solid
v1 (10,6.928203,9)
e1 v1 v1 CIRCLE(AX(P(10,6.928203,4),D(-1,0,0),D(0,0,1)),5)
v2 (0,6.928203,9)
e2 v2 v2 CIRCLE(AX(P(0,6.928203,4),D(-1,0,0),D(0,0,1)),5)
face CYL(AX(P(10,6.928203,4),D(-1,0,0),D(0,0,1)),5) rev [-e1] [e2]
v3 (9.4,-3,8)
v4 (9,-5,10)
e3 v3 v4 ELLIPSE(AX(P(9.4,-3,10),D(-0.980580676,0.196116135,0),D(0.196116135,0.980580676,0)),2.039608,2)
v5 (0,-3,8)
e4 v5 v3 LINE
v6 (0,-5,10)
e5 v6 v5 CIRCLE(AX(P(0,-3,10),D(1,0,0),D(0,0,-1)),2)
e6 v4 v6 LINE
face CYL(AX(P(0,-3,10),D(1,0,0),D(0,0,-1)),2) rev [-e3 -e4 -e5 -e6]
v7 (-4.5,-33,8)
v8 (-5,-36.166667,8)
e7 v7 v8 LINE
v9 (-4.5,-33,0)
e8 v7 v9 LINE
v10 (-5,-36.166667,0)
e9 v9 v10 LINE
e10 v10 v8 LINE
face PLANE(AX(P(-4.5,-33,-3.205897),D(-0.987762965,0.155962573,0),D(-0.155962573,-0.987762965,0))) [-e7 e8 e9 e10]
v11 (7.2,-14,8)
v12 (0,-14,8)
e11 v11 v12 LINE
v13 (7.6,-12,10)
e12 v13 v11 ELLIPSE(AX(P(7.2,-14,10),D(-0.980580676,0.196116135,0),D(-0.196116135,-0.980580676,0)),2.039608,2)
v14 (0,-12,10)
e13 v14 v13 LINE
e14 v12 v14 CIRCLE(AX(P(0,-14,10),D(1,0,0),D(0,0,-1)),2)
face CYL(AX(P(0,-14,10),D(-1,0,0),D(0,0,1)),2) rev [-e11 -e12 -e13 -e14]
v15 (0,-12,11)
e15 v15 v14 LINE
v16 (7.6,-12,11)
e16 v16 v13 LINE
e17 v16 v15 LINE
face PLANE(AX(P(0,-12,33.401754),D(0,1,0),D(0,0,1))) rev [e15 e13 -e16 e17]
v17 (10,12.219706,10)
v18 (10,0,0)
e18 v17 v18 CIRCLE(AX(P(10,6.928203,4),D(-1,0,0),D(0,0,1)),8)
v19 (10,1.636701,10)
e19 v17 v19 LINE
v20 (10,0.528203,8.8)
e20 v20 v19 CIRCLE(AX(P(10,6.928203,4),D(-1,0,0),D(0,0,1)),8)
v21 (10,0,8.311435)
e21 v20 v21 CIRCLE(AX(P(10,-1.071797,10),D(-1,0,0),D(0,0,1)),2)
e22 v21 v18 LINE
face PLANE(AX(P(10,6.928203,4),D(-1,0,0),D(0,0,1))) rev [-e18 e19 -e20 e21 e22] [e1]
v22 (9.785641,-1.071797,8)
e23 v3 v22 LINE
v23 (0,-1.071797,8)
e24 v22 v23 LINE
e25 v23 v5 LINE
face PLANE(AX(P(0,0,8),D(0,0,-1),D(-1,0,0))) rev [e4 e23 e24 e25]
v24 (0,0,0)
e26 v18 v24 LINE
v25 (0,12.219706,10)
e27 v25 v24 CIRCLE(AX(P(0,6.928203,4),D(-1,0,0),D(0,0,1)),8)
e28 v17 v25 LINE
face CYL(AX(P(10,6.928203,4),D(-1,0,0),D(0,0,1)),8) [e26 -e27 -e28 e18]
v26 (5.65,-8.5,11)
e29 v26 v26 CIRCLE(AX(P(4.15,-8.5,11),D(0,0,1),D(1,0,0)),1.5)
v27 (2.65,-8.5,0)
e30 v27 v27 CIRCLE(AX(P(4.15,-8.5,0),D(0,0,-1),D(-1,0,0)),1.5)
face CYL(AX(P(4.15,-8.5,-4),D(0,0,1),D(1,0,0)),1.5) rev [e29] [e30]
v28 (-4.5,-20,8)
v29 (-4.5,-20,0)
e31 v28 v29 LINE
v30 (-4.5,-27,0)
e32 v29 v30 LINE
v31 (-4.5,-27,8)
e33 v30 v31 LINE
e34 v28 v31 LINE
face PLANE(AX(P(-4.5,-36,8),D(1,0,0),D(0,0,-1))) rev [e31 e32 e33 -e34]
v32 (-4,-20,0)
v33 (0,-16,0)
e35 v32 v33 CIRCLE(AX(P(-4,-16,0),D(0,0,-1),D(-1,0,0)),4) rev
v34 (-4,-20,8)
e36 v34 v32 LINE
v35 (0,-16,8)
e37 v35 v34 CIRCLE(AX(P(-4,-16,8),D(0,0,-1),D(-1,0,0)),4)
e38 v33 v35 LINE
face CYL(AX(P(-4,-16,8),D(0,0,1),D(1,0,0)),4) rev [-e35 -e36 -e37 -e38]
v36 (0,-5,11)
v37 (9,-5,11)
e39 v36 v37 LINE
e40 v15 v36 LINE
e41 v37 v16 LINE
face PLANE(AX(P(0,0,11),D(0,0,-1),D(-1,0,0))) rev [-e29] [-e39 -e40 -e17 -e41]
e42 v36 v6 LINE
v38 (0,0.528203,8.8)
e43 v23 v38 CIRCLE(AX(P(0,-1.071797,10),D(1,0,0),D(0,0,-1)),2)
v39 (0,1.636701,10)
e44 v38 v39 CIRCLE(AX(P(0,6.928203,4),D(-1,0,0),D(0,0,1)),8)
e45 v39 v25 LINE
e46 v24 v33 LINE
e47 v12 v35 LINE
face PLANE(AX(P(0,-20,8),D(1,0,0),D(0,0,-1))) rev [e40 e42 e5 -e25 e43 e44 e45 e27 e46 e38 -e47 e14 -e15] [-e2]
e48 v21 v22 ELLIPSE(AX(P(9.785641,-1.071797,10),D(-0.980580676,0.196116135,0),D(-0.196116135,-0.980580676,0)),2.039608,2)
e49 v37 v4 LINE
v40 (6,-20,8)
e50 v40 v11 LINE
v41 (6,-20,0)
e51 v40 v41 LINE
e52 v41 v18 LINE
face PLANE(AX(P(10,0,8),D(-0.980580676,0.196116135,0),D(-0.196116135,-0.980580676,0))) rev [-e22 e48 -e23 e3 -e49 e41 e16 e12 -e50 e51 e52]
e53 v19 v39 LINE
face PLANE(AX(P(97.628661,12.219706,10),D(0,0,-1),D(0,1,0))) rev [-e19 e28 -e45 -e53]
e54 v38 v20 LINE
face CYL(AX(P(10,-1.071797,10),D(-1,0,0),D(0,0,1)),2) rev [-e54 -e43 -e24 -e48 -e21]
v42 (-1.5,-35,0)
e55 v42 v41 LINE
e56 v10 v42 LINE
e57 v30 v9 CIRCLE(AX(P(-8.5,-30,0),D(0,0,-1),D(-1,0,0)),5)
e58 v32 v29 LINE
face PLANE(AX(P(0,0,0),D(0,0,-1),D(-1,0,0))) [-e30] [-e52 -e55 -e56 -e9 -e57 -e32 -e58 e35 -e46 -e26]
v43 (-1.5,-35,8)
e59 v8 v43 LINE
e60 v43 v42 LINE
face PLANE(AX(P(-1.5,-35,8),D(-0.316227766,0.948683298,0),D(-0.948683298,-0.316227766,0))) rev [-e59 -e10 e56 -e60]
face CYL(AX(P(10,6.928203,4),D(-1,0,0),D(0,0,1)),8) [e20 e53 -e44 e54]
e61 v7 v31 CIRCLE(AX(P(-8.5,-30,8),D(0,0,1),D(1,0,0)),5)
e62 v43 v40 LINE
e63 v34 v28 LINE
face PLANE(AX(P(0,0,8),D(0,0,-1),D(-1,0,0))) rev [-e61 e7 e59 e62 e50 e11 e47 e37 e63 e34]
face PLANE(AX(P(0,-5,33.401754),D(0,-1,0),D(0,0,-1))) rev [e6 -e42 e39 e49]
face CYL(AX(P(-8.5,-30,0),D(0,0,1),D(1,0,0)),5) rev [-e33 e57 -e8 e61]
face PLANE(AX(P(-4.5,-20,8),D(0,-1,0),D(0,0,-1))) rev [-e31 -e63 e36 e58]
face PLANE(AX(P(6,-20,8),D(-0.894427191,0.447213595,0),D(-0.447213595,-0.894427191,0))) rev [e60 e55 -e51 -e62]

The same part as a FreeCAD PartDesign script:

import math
import FreeCAD as App
import Part
import Sketcher
from FreeCAD import Vector


def edges_at(feature, points):
    """Names of the edges that pass closest to the given points."""
    edges = feature.Shape.Edges
    near = lambda p: min(range(len(edges)), key=lambda i: edges[i].distToShape(Part.Vertex(*p))[0])
    return sorted({f"Edge{near(p) + 1}" for p in points})

doc = App.newDocument("Part")
body = doc.addObject("PartDesign::Body", "Body")

# Sketch on XY plane
sketch1 = body.newObject("Sketcher::SketchObject", "Sketch")
sketch1.AttachmentSupport = (doc.getObject("XY_Plane"), [""])
sketch1.MapMode = "FlatFace"
sketch1.addGeometry([
    Part.LineSegment(Vector(10, 0, 0), Vector(0, 0, 0)),  # 0
    Part.LineSegment(Vector(0, 0, 0), Vector(0, -20, 0)),  # 1
    Part.LineSegment(Vector(0, -20, 0), Vector(-4.5, -20, 0)),  # 2
    Part.LineSegment(Vector(-4.5, -20, 0), Vector(-4.5, -36, 0)),  # 3
    Part.LineSegment(Vector(-4.5, -36, 0), Vector(-1.5, -35, 0)),  # 4
    Part.LineSegment(Vector(-1.5, -35, 0), Vector(6, -20, 0)),  # 5
    Part.LineSegment(Vector(6, -20, 0), Vector(10, 0, 0)),  # 6
], False)
sketch1.addConstraint([
    Sketcher.Constraint("Coincident", 0, 2, 1, 1),
    Sketcher.Constraint("Coincident", 1, 2, 2, 1),
    Sketcher.Constraint("Coincident", 2, 2, 3, 1),
    Sketcher.Constraint("Coincident", 3, 2, 4, 1),
    Sketcher.Constraint("Coincident", 4, 2, 5, 1),
    Sketcher.Constraint("Coincident", 5, 2, 6, 1),
    Sketcher.Constraint("Coincident", 6, 2, 0, 1),
    Sketcher.Constraint("Horizontal", 0),
    Sketcher.Constraint("Vertical", 1),
    Sketcher.Constraint("Horizontal", 2),
    Sketcher.Constraint("Vertical", 3),
    Sketcher.Constraint("Coincident", 0, 2, -1, 1),
    Sketcher.Constraint("Horizontal", 2, 2, 5, 2),
    Sketcher.Constraint("DistanceX", 0, 2, 0, 1, 10.0),
    Sketcher.Constraint("DistanceY", 1, 2, 1, 1, 20.0),
    Sketcher.Constraint("DistanceY", 3, 2, 3, 1, 16.0),
    Sketcher.Constraint("DistanceX", 2, 2, 2, 1, 4.5),
    Sketcher.Constraint("DistanceY", 4, 2, -1, 1, 35.0),
    Sketcher.Constraint("DistanceX", -1, 1, 5, 2, 6.0),
    Sketcher.Constraint("DistanceX", 3, 2, 4, 2, 3.0),
])
pad1 = body.newObject("PartDesign::Pad", "Pad")
pad1.Profile = sketch1
pad1.Length = 8
doc.recompute()

fillet = body.newObject("PartDesign::Fillet", "Fillet")
fillet.Base = (pad1, edges_at(pad1, [(0, -20, 4)]))
fillet.Radius = 4

# Sketch on XY plane
sketch2 = body.newObject("Sketcher::SketchObject", "Sketch001")
sketch2.AttachmentSupport = (doc.getObject("XY_Plane"), [""])
sketch2.MapMode = "FlatFace"
sketch2.AttachmentOffset = App.Placement(Vector(0, 0, 8), App.Rotation())
sketch2.addGeometry(Part.Circle(Vector(-8, -30, 0), Vector(0, 0, 1), 5), False)
sketch2.addConstraint([
    Sketcher.Constraint("Diameter", 0, 10.0),
    Sketcher.Constraint("DistanceY", 0, 3, -1, 1, 30.0),
    Sketcher.Constraint("DistanceX", 0, 3, -1, 1, 8.5),
])
pocket1 = body.newObject("PartDesign::Pocket", "Pocket")
pocket1.Profile = sketch2
pocket1.Type = "ThroughAll"

# Sketch on XY plane
sketch3 = body.newObject("Sketcher::SketchObject", "Sketch002")
sketch3.AttachmentSupport = (doc.getObject("XY_Plane"), [""])
sketch3.MapMode = "FlatFace"
sketch3.AttachmentOffset = App.Placement(Vector(0, 0, 8), App.Rotation())
sketch3.addGeometry([
    Part.LineSegment(Vector(-4.5, -33, 0), Vector(-5, -36.2, 0)),
    Part.LineSegment(Vector(-5, -36.2, 0), Vector(-4.5, -36, 0)),
    Part.LineSegment(Vector(-4.5, -36, 0), Vector(-4.5, -33, 0)),
], False)
sketch3.addConstraint([
    Sketcher.Constraint("Coincident", 0, 2, 1, 1),
    Sketcher.Constraint("Coincident", 1, 2, 2, 1),
    Sketcher.Constraint("Coincident", 2, 2, 0, 1),
    Sketcher.Constraint("Vertical", 2),
    Sketcher.Constraint("DistanceY", 2, 1, 2, 2, 3.0),
    Sketcher.Constraint("DistanceX", 0, 2, -1, 1, 5.0),
    Sketcher.Constraint("DistanceY", 1, 2, -1, 1, 36.0),
    Sketcher.Constraint("DistanceX", 1, 2, -1, 1, 4.5),
    Sketcher.Constraint("Distance", 0, 3.205897),
])
pad2 = body.newObject("PartDesign::Pad", "Pad001")
pad2.Profile = sketch3
pad2.Length = 8
pad2.Reversed = True

# Sketch on YZ plane
sketch4 = body.newObject("Sketcher::SketchObject", "Sketch003")
sketch4.AttachmentSupport = (doc.getObject("YZ_Plane"), [""])
sketch4.MapMode = "FlatFace"
sketch4.addGeometry([
    Part.LineSegment(Vector(0, 0, 0), Vector(0, 8, 0)),
    Part.ArcOfCircle(Part.Circle(Vector(7, 4, 0), Vector(0, 0, 1), 8), math.radians(-150), math.radians(150)),
    Part.Circle(Vector(7, 4, 0), Vector(0, 0, 1), 5),
], False)
sketch4.addConstraint([
    Sketcher.Constraint("Coincident", 0, 1, 1, 1),
    Sketcher.Constraint("Coincident", 1, 2, 0, 2),
    Sketcher.Constraint("Vertical", 0),
    Sketcher.Constraint("Coincident", 0, 1, -1, 1),
    Sketcher.Constraint("Coincident", 2, 3, 1, 3),
    Sketcher.Constraint("Diameter", 2, 10.0),
    Sketcher.Constraint("Radius", 1, 8.0),
    Sketcher.Constraint("DistanceY", 0, 1, 0, 2, 8.0),
])
pad3 = body.newObject("PartDesign::Pad", "Pad002")
pad3.Profile = sketch4
pad3.Length = 10

# Sketch on YZ plane
sketch5 = body.newObject("Sketcher::SketchObject", "Sketch004")
sketch5.AttachmentSupport = (doc.getObject("YZ_Plane"), [""])
sketch5.MapMode = "FlatFace"
sketch5.AttachmentOffset = App.Placement(Vector(0, 0, 10), App.Rotation())
sketch5.addGeometry([
    Part.LineSegment(Vector(-109, 10, 0), Vector(123, 10, 0)),
    Part.LineSegment(Vector(123, 10, 0), Vector(123, 231, 0)),
    Part.LineSegment(Vector(123, 231, 0), Vector(-109, 231, 0)),
    Part.LineSegment(Vector(-109, 231, 0), Vector(-109, 10, 0)),
], False)
sketch5.addConstraint([
    Sketcher.Constraint("Coincident", 0, 2, 1, 1),
    Sketcher.Constraint("Coincident", 1, 2, 2, 1),
    Sketcher.Constraint("Coincident", 2, 2, 3, 1),
    Sketcher.Constraint("Coincident", 3, 2, 0, 1),
    Sketcher.Constraint("Horizontal", 0),
    Sketcher.Constraint("Vertical", 1),
    Sketcher.Constraint("Horizontal", 2),
    Sketcher.Constraint("Vertical", 3),
    Sketcher.Constraint("DistanceY", -1, 1, 0, 2, 10.0),
    Sketcher.Constraint("DistanceX", 0, 1, 0, 2, 232.06714),
    Sketcher.Constraint("DistanceY", 1, 1, 1, 2, 221.484135),
    Sketcher.Constraint("DistanceX", -1, 1, 0, 2, 122.961773),
])
pocket2 = body.newObject("PartDesign::Pocket", "Pocket001")
pocket2.Profile = sketch5
pocket2.Type = "ThroughAll"
pocket2.Midplane = True

# Sketch on XY plane
sketch6 = body.newObject("Sketcher::SketchObject", "Sketch005")
sketch6.AttachmentSupport = (doc.getObject("XY_Plane"), [""])
sketch6.MapMode = "FlatFace"
sketch6.AttachmentOffset = App.Placement(Vector(0, 0, 8), App.Rotation())
sketch6.addGeometry([
    Part.LineSegment(Vector(0, -5, 0), Vector(0, -12, 0)),
    Part.LineSegment(Vector(0, -12, 0), Vector(8, -12, 0)),
    Part.LineSegment(Vector(8, -12, 0), Vector(9, -5, 0)),
    Part.LineSegment(Vector(9, -5, 0), Vector(0, -5, 0)),
], False)
sketch6.addConstraint([
    Sketcher.Constraint("Coincident", 0, 2, 1, 1),
    Sketcher.Constraint("Coincident", 1, 2, 2, 1),
    Sketcher.Constraint("Coincident", 2, 2, 3, 1),
    Sketcher.Constraint("Coincident", 3, 2, 0, 1),
    Sketcher.Constraint("Vertical", 0),
    Sketcher.Constraint("Horizontal", 1),
    Sketcher.Constraint("Horizontal", 3),
    Sketcher.Constraint("PointOnObject", 0, 2, -2),
    Sketcher.Constraint("DistanceX", 3, 2, 3, 1, 9.0),
    Sketcher.Constraint("DistanceY", 0, 2, 0, 1, 7.0),
    Sketcher.Constraint("DistanceX", 1, 1, 1, 2, 7.6),
    Sketcher.Constraint("DistanceY", 0, 2, -1, 1, 12.0),
])
pad4 = body.newObject("PartDesign::Pad", "Pad003")
pad4.Profile = sketch6
pad4.Length = 3
doc.recompute()

fillet2 = body.newObject("PartDesign::Fillet", "Fillet001")
fillet2.Base = (pad4, edges_at(pad4, [(5, 0, 8), (4.5, -5, 8), (3.8, -12, 8)]))
fillet2.Radius = 2

# Sketch on XY plane
sketch7 = body.newObject("Sketcher::SketchObject", "Sketch006")
sketch7.AttachmentSupport = (doc.getObject("XY_Plane"), [""])
sketch7.MapMode = "FlatFace"
sketch7.AttachmentOffset = App.Placement(Vector(0, 0, 11), App.Rotation())
sketch7.addGeometry(Part.Circle(Vector(4.2, -8.5, 0), Vector(0, 0, 1), 1.5), False)
sketch7.addConstraint([
    Sketcher.Constraint("Diameter", 0, 3.0),
    Sketcher.Constraint("DistanceY", 0, 3, -1, 1, 8.5),
    Sketcher.Constraint("DistanceX", -1, 1, 0, 3, 4.15),
])
pocket3 = body.newObject("PartDesign::Pocket", "Pocket002")
pocket3.Profile = sketch7
pocket3.Type = "ThroughAll"

doc.recompute()
